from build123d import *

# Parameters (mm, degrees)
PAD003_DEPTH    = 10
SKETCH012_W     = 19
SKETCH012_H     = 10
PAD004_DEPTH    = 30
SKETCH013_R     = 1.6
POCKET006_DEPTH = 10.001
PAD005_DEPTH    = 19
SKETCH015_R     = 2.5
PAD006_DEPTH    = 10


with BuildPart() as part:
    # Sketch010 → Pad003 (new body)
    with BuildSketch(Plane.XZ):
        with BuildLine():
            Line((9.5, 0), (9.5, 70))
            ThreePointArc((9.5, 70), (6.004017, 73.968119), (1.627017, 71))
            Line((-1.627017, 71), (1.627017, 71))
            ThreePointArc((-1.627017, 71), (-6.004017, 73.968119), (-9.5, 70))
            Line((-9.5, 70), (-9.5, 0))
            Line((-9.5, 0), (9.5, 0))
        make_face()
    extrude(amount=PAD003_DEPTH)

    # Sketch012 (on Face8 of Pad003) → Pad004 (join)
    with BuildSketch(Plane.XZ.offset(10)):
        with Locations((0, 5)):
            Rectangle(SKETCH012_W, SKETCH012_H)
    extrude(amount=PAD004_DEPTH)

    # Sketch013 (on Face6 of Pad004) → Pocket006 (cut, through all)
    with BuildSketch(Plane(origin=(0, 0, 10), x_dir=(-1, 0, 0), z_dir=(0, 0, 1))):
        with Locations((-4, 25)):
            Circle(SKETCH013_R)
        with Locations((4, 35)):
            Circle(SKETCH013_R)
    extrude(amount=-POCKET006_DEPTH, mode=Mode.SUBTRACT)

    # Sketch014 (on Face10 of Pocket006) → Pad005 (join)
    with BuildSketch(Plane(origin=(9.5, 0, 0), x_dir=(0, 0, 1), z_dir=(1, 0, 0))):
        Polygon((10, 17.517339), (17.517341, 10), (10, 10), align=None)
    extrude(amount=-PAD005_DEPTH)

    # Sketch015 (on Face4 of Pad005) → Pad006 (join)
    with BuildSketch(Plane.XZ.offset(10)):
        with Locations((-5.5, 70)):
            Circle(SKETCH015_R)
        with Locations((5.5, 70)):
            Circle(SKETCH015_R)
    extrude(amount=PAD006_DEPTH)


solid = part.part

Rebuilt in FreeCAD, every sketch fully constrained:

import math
import FreeCAD as App
import Part
import Sketcher
from FreeCAD import Vector

doc = App.newDocument("Part")
body = doc.addObject("PartDesign::Body", "Body")

# Sketch on XZ plane
sketch1 = body.newObject("Sketcher::SketchObject", "Sketch")
sketch1.AttachmentSupport = (doc.getObject("XZ_Plane"), [""])
sketch1.MapMode = "FlatFace"
sketch1.addGeometry([
    Part.LineSegment(Vector(9.5, 0, 0), Vector(9.5, 70, 0)),  # 0
    Part.ArcOfCircle(Part.Circle(Vector(5.5, 70, 0), Vector(0, 0, 1), 4), math.radians(0), math.radians(166)),  # 1
    Part.LineSegment(Vector(1.6, 71, 0), Vector(-1.6, 71, 0)),  # 2
    Part.ArcOfCircle(Part.Circle(Vector(-5.5, 70, 0), Vector(0, 0, 1), 4), math.radians(14), math.radians(180)),  # 3
    Part.LineSegment(Vector(-9.5, 70, 0), Vector(-9.5, 0, 0)),  # 4
    Part.LineSegment(Vector(-9.5, 0, 0), Vector(9.5, 0, 0)),  # 5
], False)
sketch1.addConstraint([
    Sketcher.Constraint("Tangent", 0, 2, 1, 1),
    Sketcher.Constraint("Coincident", 1, 2, 2, 1),
    Sketcher.Constraint("Coincident", 2, 2, 3, 1),
    Sketcher.Constraint("Tangent", 3, 2, 4, 1),
    Sketcher.Constraint("Coincident", 4, 2, 5, 1),
    Sketcher.Constraint("Coincident", 5, 2, 0, 1),
    Sketcher.Constraint("Vertical", 0),
    Sketcher.Constraint("Horizontal", 2),
    Sketcher.Constraint("Vertical", 4),
    Sketcher.Constraint("Horizontal", 5),
    Sketcher.Constraint("Equal", 1, 3),
    Sketcher.Constraint("Symmetric", 4, 2, 5, 2, -1, 1),
    Sketcher.Constraint("Horizontal", 1, 3, 3, 3),
    Sketcher.Constraint("Radius", 1, 4.0),
    Sketcher.Constraint("DistanceX", 5, 1, 5, 2, 19.0),
    Sketcher.Constraint("DistanceY", 0, 1, 0, 2, 70.0),
    Sketcher.Constraint("DistanceY", -1, 1, 1, 2, 71.0),
])
pad1 = body.newObject("PartDesign::Pad", "Pad")
pad1.Profile = sketch1
pad1.Length = 10

# Sketch on XZ plane
sketch2 = body.newObject("Sketcher::SketchObject", "Sketch001")
sketch2.AttachmentSupport = (doc.getObject("XZ_Plane"), [""])
sketch2.MapMode = "FlatFace"
sketch2.AttachmentOffset = App.Placement(Vector(0, 0, 10), App.Rotation())
sketch2.addGeometry([
    Part.LineSegment(Vector(-10, 10, 0), Vector(-10, 0, 0)),
    Part.LineSegment(Vector(-10, 0, 0), Vector(10, 0, 0)),
    Part.LineSegment(Vector(10, 0, 0), Vector(10, 10, 0)),
    Part.LineSegment(Vector(10, 10, 0), Vector(-10, 10, 0)),
], False)
sketch2.addConstraint([
    Sketcher.Constraint("Coincident", 0, 2, 1, 1),
    Sketcher.Constraint("Coincident", 1, 2, 2, 1),
    Sketcher.Constraint("Coincident", 2, 2, 3, 1),
    Sketcher.Constraint("Coincident", 3, 2, 0, 1),
    Sketcher.Constraint("Vertical", 0),
    Sketcher.Constraint("Horizontal", 1),
    Sketcher.Constraint("Vertical", 2),
    Sketcher.Constraint("Horizontal", 3),
    Sketcher.Constraint("Symmetric", 0, 2, 1, 2, -1, 1),
    Sketcher.Constraint("DistanceX", 1, 1, 1, 2, 19.0),
    Sketcher.Constraint("DistanceY", 0, 2, 0, 1, 10.0),
])
pad2 = body.newObject("PartDesign::Pad", "Pad001")
pad2.Profile = sketch2
pad2.Length = 30

# Sketch on XY plane
sketch3 = body.newObject("Sketcher::SketchObject", "Sketch002")
sketch3.AttachmentSupport = (doc.getObject("XY_Plane"), [""])
sketch3.MapMode = "FlatFace"
sketch3.AttachmentOffset = App.Placement(Vector(0, 0, 10), App.Rotation())
sketch3.addGeometry([
    Part.Circle(Vector(4, -25, 0), Vector(0, 0, 1), 1.6),
    Part.Circle(Vector(-4, -35, 0), Vector(0, 0, 1), 1.6),
], False)
sketch3.addConstraint([
    Sketcher.Constraint("Equal", 0, 1),
    Sketcher.Constraint("Diameter", 0, 3.2),
    Sketcher.Constraint("DistanceX", -1, 1, 0, 3, 4.0),
    Sketcher.Constraint("DistanceY", 0, 3, -1, 1, 25.0),
    Sketcher.Constraint("DistanceX", 1, 3, -1, 1, 4.0),
    Sketcher.Constraint("DistanceY", 1, 3, -1, 1, 35.0),
])
pocket1 = body.newObject("PartDesign::Pocket", "Pocket")
pocket1.Profile = sketch3
pocket1.Type = "ThroughAll"

# Sketch on YZ plane
sketch4 = body.newObject("Sketcher::SketchObject", "Sketch003")
sketch4.AttachmentSupport = (doc.getObject("YZ_Plane"), [""])
sketch4.MapMode = "FlatFace"
sketch4.AttachmentOffset = App.Placement(Vector(0, 0, 9.5), App.Rotation())
sketch4.addGeometry([
    Part.LineSegment(Vector(-10, 18, 0), Vector(-18, 10, 0)),
    Part.LineSegment(Vector(-18, 10, 0), Vector(-10, 10, 0)),
    Part.LineSegment(Vector(-10, 10, 0), Vector(-10, 18, 0)),
], False)
sketch4.addConstraint([
    Sketcher.Constraint("Coincident", 0, 2, 1, 1),
    Sketcher.Constraint("Coincident", 1, 2, 2, 1),
    Sketcher.Constraint("Coincident", 2, 2, 0, 1),
    Sketcher.Constraint("Horizontal", 1),
    Sketcher.Constraint("Vertical", 2),
    Sketcher.Constraint("Equal", 1, 2),
    Sketcher.Constraint("DistanceY", -1, 1, 0, 2, 10.0),
    Sketcher.Constraint("DistanceX", 1, 2, -1, 1, 10.0),
    Sketcher.Constraint("DistanceX", 1, 1, 1, 2, 7.517339),
])
pad3 = body.newObject("PartDesign::Pad", "Pad002")
pad3.Profile = sketch4
pad3.Length = 19
pad3.Reversed = True

# Sketch on XZ plane
sketch5 = body.newObject("Sketcher::SketchObject", "Sketch004")
sketch5.AttachmentSupport = (doc.getObject("XZ_Plane"), [""])
sketch5.MapMode = "FlatFace"
sketch5.AttachmentOffset = App.Placement(Vector(0, 0, 10), App.Rotation())
sketch5.addGeometry([
    Part.Circle(Vector(-5.5, 70, 0), Vector(0, 0, 1), 2.5),
    Part.Circle(Vector(5.5, 70, 0), Vector(0, 0, 1), 2.5),
], False)
sketch5.addConstraint([
    Sketcher.Constraint("Equal", 0, 1),
    Sketcher.Constraint("Symmetric", 0, 3, 1, 3, -2),
    Sketcher.Constraint("Diameter", 0, 5.0),
    Sketcher.Constraint("DistanceY", -1, 1, 0, 3, 70.0),
    Sketcher.Constraint("DistanceX", 0, 3, 1, 3, 11.0),
])
pad4 = body.newObject("PartDesign::Pad", "Pad003")
pad4.Profile = sketch5
pad4.Length = 10

doc.recompute()
